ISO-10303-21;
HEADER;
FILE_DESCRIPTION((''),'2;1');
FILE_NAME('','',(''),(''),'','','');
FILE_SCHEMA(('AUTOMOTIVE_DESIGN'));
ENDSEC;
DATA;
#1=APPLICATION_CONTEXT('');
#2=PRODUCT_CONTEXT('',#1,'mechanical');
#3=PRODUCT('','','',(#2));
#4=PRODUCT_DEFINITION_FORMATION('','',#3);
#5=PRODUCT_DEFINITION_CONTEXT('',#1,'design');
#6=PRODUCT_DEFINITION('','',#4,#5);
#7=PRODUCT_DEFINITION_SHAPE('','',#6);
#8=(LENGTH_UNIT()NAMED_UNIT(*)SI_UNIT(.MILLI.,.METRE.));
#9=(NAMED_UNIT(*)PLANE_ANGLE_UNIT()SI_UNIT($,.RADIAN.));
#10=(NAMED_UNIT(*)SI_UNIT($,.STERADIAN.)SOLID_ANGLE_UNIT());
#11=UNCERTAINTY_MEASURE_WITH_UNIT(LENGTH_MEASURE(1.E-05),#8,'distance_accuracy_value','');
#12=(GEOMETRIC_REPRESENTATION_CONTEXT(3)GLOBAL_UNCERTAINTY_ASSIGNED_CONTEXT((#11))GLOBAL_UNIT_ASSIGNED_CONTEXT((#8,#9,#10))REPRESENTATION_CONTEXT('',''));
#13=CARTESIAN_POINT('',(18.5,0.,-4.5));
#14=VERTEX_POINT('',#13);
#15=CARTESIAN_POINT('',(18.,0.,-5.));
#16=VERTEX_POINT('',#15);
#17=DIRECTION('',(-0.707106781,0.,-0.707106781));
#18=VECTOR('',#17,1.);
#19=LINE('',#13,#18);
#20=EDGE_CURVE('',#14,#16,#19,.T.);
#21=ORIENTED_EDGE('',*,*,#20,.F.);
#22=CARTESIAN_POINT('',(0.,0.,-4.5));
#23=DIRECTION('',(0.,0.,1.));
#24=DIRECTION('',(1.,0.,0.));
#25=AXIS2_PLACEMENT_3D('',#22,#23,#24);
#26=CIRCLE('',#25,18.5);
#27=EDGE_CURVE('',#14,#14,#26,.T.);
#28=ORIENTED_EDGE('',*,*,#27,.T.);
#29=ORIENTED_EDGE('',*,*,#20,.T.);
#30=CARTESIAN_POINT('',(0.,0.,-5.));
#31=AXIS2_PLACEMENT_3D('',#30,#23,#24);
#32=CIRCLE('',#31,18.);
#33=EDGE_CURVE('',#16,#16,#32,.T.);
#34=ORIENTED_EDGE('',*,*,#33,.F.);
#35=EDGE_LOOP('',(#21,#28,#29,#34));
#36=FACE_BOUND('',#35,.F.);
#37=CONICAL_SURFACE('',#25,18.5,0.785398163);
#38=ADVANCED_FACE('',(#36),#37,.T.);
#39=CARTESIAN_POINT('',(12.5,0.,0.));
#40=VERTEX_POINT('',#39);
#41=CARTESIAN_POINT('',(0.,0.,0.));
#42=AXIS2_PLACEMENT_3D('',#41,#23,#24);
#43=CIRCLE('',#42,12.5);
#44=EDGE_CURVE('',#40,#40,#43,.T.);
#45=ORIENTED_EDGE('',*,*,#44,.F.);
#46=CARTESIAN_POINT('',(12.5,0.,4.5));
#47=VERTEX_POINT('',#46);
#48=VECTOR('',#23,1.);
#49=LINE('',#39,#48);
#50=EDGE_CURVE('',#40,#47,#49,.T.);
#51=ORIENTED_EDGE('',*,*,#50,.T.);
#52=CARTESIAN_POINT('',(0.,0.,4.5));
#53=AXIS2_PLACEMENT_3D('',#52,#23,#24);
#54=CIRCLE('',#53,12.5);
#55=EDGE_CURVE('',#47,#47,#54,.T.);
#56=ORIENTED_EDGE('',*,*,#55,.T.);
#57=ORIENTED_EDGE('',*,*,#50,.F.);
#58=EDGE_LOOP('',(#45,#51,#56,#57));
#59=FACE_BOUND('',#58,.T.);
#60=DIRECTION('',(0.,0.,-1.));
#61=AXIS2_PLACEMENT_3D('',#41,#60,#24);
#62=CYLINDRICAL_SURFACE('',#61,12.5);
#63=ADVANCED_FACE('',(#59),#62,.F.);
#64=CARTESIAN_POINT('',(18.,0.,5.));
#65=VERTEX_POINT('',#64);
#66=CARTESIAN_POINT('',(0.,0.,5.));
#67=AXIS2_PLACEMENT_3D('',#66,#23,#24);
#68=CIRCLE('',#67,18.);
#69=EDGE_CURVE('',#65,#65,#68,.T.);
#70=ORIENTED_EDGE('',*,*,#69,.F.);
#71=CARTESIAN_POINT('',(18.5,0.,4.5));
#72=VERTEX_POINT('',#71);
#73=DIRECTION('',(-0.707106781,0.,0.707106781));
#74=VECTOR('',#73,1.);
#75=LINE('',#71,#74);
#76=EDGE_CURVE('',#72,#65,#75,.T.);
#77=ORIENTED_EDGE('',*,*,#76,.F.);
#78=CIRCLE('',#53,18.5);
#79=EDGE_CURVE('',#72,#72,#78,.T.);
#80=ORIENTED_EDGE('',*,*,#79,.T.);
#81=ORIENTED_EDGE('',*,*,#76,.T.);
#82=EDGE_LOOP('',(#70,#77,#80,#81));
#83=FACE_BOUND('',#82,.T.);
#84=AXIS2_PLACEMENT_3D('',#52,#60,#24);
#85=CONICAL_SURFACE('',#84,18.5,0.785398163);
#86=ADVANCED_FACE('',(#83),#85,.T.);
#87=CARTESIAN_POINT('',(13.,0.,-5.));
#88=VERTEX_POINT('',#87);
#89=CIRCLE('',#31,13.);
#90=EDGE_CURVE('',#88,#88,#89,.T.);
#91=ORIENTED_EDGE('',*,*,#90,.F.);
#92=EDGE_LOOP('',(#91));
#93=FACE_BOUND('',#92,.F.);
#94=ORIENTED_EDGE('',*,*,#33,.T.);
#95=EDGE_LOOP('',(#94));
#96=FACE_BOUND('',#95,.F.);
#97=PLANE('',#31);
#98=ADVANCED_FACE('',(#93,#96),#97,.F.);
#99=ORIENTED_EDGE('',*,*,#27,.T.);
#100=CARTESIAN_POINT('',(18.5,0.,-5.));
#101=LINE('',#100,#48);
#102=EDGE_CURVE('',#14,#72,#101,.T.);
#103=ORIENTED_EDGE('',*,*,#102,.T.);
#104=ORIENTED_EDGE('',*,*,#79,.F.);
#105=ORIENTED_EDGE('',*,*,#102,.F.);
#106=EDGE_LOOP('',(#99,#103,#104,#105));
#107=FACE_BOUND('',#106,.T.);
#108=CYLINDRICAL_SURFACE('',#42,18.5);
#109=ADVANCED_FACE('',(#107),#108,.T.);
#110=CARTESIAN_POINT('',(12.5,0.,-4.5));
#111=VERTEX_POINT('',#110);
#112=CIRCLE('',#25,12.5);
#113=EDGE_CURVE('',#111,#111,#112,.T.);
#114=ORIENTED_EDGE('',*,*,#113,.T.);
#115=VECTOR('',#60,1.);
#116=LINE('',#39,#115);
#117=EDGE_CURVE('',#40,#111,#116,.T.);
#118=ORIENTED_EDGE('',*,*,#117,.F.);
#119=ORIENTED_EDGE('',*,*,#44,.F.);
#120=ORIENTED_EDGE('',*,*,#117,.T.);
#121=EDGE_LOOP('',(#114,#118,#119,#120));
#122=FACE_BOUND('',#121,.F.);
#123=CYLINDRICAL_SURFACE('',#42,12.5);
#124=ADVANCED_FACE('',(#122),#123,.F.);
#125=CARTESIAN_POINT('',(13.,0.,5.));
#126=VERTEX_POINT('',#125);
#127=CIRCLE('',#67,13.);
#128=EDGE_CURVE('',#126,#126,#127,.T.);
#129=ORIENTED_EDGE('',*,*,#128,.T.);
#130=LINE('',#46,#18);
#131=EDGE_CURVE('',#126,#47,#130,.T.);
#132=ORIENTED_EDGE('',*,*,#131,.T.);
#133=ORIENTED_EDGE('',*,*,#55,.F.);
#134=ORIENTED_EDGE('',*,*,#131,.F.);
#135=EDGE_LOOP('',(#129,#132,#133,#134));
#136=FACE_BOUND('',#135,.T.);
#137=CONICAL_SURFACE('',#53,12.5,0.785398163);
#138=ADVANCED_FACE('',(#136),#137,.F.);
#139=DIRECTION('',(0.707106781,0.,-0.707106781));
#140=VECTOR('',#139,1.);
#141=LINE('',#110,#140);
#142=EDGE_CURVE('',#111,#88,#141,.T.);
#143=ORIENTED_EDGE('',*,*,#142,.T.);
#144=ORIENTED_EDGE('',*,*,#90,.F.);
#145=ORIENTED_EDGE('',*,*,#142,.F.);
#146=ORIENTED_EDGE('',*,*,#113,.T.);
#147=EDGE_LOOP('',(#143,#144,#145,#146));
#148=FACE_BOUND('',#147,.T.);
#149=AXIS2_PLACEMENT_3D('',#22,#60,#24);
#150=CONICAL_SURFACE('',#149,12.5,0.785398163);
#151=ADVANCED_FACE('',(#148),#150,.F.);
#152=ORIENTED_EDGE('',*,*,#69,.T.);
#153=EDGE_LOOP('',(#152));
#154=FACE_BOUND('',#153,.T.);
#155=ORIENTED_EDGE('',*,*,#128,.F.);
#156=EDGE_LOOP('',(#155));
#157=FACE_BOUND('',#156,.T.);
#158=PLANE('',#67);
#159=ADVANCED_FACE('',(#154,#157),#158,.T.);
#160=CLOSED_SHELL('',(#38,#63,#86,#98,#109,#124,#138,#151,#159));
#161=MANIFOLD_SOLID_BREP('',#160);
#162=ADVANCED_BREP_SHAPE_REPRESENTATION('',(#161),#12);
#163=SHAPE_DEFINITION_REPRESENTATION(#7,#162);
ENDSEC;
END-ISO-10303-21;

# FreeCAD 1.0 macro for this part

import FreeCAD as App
import Part
import Sketcher


def edges_at(feature, points):
    """Names of the edges that pass closest to the given points."""
    edges = feature.Shape.Edges
    near = lambda p: min(range(len(edges)), key=lambda i: edges[i].distToShape(Part.Vertex(*p))[0])
    return sorted({f"Edge{near(p) + 1}" for p in points})

doc = App.newDocument("Part")
body = doc.addObject("PartDesign::Body", "Body")

sketch1 = body.newObject("Sketcher::SketchObject", "Sketch")
sketch1.AttachmentSupport = (doc.getObject("XY_Plane"), [""])
sketch1.MapMode = "FlatFace"
sketch1.addGeometry([
    Part.Circle(App.Vector(0, 0, 0), App.Vector(0, 0, 1), 18.5),
    Part.Circle(App.Vector(0, 0, 0), App.Vector(0, 0, 1), 12.5),
], False)
sketch1.addConstraint([
    Sketcher.Constraint("Coincident", 0, 3, -1, 1),
    Sketcher.Constraint("Coincident", 1, 3, -1, 1),
    Sketcher.Constraint("Diameter", 0, 37.0),
    Sketcher.Constraint("Diameter", 1, 25.0),
])
pad1 = body.newObject("PartDesign::Pad", "Pad")
pad1.Profile = sketch1
pad1.Type = "TwoLengths"
pad1.Length = 5
pad1.Length2 = 5
doc.recompute()

chamfer = body.newObject("PartDesign::Chamfer", "Chamfer")
chamfer.Base = (pad1, edges_at(pad1, [
    (-12.5, 0, -5),
    (-18.5, 0, -5),
    (-12.5, 0, 5),
    (-18.5, 0, 5),
]))
chamfer.Size = 0.5

doc.recompute()
